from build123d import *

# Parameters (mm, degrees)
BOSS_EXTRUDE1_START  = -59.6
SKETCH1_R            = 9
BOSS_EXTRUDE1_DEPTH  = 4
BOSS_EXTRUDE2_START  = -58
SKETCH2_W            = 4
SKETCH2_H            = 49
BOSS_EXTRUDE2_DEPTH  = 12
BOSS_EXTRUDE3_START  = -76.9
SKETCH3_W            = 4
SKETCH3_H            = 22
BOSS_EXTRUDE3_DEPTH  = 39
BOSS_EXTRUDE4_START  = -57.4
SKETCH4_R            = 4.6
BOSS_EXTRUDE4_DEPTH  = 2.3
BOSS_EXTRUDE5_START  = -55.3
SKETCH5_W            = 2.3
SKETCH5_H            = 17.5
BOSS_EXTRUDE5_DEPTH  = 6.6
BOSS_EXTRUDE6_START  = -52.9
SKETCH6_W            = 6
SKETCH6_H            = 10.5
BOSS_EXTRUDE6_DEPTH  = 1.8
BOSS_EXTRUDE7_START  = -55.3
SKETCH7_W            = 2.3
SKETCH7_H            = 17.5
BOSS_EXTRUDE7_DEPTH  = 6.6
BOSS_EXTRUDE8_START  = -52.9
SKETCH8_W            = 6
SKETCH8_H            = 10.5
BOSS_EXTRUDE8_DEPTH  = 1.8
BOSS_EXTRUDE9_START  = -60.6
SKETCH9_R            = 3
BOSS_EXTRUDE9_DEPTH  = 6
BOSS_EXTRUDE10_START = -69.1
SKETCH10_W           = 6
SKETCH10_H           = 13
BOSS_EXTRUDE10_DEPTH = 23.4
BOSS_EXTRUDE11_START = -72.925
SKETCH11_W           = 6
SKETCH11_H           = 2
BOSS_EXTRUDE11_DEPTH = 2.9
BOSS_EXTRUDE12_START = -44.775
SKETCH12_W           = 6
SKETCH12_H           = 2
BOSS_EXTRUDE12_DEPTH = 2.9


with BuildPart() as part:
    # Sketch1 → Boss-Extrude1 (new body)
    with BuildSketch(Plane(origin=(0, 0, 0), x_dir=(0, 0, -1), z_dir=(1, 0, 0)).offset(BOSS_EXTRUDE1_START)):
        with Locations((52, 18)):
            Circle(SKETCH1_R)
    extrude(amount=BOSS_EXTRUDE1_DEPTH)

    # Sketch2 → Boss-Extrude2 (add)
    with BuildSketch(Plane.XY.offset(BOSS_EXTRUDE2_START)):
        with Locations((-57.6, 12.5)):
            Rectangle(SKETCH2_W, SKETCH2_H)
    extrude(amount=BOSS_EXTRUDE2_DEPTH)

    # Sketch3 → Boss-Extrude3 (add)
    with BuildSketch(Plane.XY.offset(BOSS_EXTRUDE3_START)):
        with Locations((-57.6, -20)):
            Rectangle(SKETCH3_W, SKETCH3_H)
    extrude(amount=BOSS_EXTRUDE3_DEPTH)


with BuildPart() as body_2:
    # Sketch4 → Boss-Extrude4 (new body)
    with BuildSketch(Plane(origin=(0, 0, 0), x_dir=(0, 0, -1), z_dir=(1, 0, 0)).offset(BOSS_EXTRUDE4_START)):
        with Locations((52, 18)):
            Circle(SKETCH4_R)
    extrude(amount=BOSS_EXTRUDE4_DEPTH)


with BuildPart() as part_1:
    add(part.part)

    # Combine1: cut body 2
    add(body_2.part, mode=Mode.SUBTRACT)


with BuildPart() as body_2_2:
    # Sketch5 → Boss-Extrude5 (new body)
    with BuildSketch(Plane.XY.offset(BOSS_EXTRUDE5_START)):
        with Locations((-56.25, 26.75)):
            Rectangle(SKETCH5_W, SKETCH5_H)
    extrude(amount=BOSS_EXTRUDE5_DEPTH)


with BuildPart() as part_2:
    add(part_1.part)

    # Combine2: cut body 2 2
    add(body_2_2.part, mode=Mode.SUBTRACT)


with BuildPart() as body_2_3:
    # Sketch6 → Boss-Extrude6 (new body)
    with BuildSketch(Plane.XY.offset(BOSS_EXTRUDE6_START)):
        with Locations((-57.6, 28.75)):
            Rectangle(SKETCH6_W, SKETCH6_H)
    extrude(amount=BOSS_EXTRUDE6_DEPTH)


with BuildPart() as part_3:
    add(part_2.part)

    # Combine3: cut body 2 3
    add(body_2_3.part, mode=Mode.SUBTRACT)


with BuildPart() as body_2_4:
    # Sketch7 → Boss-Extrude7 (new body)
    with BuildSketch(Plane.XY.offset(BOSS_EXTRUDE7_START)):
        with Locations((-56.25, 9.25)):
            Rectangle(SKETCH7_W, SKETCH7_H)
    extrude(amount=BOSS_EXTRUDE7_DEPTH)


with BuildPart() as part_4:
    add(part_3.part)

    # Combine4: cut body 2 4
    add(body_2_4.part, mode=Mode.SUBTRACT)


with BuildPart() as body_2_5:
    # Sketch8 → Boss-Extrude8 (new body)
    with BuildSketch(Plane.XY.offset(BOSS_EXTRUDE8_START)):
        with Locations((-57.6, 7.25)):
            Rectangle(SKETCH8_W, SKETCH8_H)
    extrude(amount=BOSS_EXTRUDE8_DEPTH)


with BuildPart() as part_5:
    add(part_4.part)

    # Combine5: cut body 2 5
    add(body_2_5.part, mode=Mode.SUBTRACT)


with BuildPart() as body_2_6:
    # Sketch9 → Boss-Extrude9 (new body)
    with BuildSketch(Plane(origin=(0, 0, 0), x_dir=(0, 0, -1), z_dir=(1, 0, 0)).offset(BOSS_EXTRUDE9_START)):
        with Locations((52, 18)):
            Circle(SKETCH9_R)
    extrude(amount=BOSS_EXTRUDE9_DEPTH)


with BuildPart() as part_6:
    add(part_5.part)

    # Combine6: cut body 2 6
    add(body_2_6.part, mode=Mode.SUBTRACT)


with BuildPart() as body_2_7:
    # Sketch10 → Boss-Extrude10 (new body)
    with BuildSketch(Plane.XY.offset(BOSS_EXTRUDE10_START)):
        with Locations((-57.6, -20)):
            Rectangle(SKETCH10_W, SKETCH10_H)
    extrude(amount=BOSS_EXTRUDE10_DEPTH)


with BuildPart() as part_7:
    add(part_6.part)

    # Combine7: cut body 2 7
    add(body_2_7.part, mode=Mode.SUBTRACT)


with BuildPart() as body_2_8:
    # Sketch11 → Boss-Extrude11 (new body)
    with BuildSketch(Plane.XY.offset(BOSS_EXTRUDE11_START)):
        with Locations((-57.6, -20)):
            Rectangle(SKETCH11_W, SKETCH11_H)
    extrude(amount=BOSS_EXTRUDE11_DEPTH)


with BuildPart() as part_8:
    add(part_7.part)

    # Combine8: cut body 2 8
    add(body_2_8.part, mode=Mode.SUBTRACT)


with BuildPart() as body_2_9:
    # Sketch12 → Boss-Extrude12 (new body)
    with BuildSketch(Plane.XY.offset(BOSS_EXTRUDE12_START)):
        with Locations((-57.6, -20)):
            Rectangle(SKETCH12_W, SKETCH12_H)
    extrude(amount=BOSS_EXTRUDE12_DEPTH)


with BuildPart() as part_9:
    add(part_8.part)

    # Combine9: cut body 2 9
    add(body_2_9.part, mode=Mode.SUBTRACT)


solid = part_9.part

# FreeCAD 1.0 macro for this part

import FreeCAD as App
import Part
import Sketcher

V = App.Vector

doc = App.newDocument("Part")
body = doc.addObject("PartDesign::Body", "Body")

# Sketch on YZ plane
sketch1 = body.newObject("Sketcher::SketchObject", "Sketch")
sketch1.AttachmentSupport = (doc.getObject("YZ_Plane"), [""])
sketch1.MapMode = "FlatFace"
sketch1.AttachmentOffset = App.Placement(V(0, 0, -59.6), App.Rotation())
sketch1.addGeometry(Part.Circle(V(18, -52, 0), V(0, 0, 1), 9), False)
sketch1.addConstraint(Sketcher.Constraint("Diameter", 0, 18.0))
sketch1.addConstraint(Sketcher.Constraint("DistanceX", -1, 1, 0, 3, 18.0))
sketch1.addConstraint(Sketcher.Constraint("DistanceY", 0, 3, -1, 1, 52.0))
pad1 = body.newObject("PartDesign::Pad", "Pad")
pad1.Profile = sketch1
pad1.Length = 4

# Sketch on XY plane
sketch2 = body.newObject("Sketcher::SketchObject", "Sketch001")
sketch2.AttachmentSupport = (doc.getObject("XY_Plane"), [""])
sketch2.MapMode = "FlatFace"
sketch2.AttachmentOffset = App.Placement(V(0, 0, -58), App.Rotation())
sketch2.addGeometry(Part.LineSegment(V(-59.6, 37, 0), V(-59.6, -12, 0)), False)
sketch2.addGeometry(Part.LineSegment(V(-59.6, -12, 0), V(-55.6, -12, 0)), False)
sketch2.addGeometry(Part.LineSegment(V(-55.6, -12, 0), V(-55.6, 37, 0)), False)
sketch2.addGeometry(Part.LineSegment(V(-55.6, 37, 0), V(-59.6, 37, 0)), False)
sketch2.addConstraint(Sketcher.Constraint("Coincident", 0, 2, 1, 1))
sketch2.addConstraint(Sketcher.Constraint("Coincident", 1, 2, 2, 1))
sketch2.addConstraint(Sketcher.Constraint("Coincident", 2, 2, 3, 1))
sketch2.addConstraint(Sketcher.Constraint("Coincident", 3, 2, 0, 1))
sketch2.addConstraint(Sketcher.Constraint("Vertical", 0))
sketch2.addConstraint(Sketcher.Constraint("Horizontal", 1))
sketch2.addConstraint(Sketcher.Constraint("Vertical", 2))
sketch2.addConstraint(Sketcher.Constraint("Horizontal", 3))
sketch2.addConstraint(Sketcher.Constraint("DistanceX", 1, 1, 1, 2, 4.0))
sketch2.addConstraint(Sketcher.Constraint("DistanceY", 0, 2, 0, 1, 49.0))
sketch2.addConstraint(Sketcher.Constraint("DistanceY", 0, 2, -1, 1, 12.0))
sketch2.addConstraint(Sketcher.Constraint("DistanceX", 0, 2, -1, 1, 59.6))
pad2 = body.newObject("PartDesign::Pad", "Pad001")
pad2.Profile = sketch2
pad2.Length = 12

# Sketch on XY plane
sketch3 = body.newObject("Sketcher::SketchObject", "Sketch002")
sketch3.AttachmentSupport = (doc.getObject("XY_Plane"), [""])
sketch3.MapMode = "FlatFace"
sketch3.AttachmentOffset = App.Placement(V(0, 0, -76.9), App.Rotation())
sketch3.addGeometry(Part.LineSegment(V(-59.6, -9, 0), V(-59.6, -31, 0)), False)
sketch3.addGeometry(Part.LineSegment(V(-59.6, -31, 0), V(-55.6, -31, 0)), False)
sketch3.addGeometry(Part.LineSegment(V(-55.6, -31, 0), V(-55.6, -9, 0)), False)
sketch3.addGeometry(Part.LineSegment(V(-55.6, -9, 0), V(-59.6, -9, 0)), False)
sketch3.addConstraint(Sketcher.Constraint("Coincident", 0, 2, 1, 1))
sketch3.addConstraint(Sketcher.Constraint("Coincident", 1, 2, 2, 1))
sketch3.addConstraint(Sketcher.Constraint("Coincident", 2, 2, 3, 1))
sketch3.addConstraint(Sketcher.Constraint("Coincident", 3, 2, 0, 1))
sketch3.addConstraint(Sketcher.Constraint("Vertical", 0))
sketch3.addConstraint(Sketcher.Constraint("Horizontal", 1))
sketch3.addConstraint(Sketcher.Constraint("Vertical", 2))
sketch3.addConstraint(Sketcher.Constraint("Horizontal", 3))
sketch3.addConstraint(Sketcher.Constraint("DistanceX", 1, 1, 1, 2, 4.0))
sketch3.addConstraint(Sketcher.Constraint("DistanceY", 0, 2, 0, 1, 22.0))
sketch3.addConstraint(Sketcher.Constraint("DistanceY", 0, 2, -1, 1, 31.0))
sketch3.addConstraint(Sketcher.Constraint("DistanceX", 0, 2, -1, 1, 59.6))
pad3 = body.newObject("PartDesign::Pad", "Pad002")
pad3.Profile = sketch3
pad3.Length = 39
body2 = doc.addObject("PartDesign::Body", "Body001")

# Sketch on YZ plane
sketch4 = body2.newObject("Sketcher::SketchObject", "Sketch003")
sketch4.AttachmentSupport = (doc.getObject("YZ_Plane001"), [""])
sketch4.MapMode = "FlatFace"
sketch4.AttachmentOffset = App.Placement(V(0, 0, -57.4), App.Rotation())
sketch4.addGeometry(Part.Circle(V(18, -52, 0), V(0, 0, 1), 4.6), False)
sketch4.addConstraint(Sketcher.Constraint("Diameter", 0, 9.2))
sketch4.addConstraint(Sketcher.Constraint("DistanceX", -1, 1, 0, 3, 18.0))
sketch4.addConstraint(Sketcher.Constraint("DistanceY", 0, 3, -1, 1, 52.0))
pad4 = body2.newObject("PartDesign::Pad", "Pad003")
pad4.Profile = sketch4
pad4.Length = 2.3
doc.recompute()

boolean = body.newObject("PartDesign::Boolean", "Boolean")
boolean.Type = "Cut"
boolean.addObjects([body2])
body3 = doc.addObject("PartDesign::Body", "Body002")

# Sketch on XY plane
sketch5 = body3.newObject("Sketcher::SketchObject", "Sketch004")
sketch5.AttachmentSupport = (doc.getObject("XY_Plane002"), [""])
sketch5.MapMode = "FlatFace"
sketch5.AttachmentOffset = App.Placement(V(0, 0, -55.3), App.Rotation())
sketch5.addGeometry(Part.LineSegment(V(-57.4, 35.5, 0), V(-57.4, 18, 0)), False)
sketch5.addGeometry(Part.LineSegment(V(-57.4, 18, 0), V(-55.1, 18, 0)), False)
sketch5.addGeometry(Part.LineSegment(V(-55.1, 18, 0), V(-55.1, 35.5, 0)), False)
sketch5.addGeometry(Part.LineSegment(V(-55.1, 35.5, 0), V(-57.4, 35.5, 0)), False)
sketch5.addConstraint(Sketcher.Constraint("Coincident", 0, 2, 1, 1))
sketch5.addConstraint(Sketcher.Constraint("Coincident", 1, 2, 2, 1))
sketch5.addConstraint(Sketcher.Constraint("Coincident", 2, 2, 3, 1))
sketch5.addConstraint(Sketcher.Constraint("Coincident", 3, 2, 0, 1))
sketch5.addConstraint(Sketcher.Constraint("Vertical", 0))
sketch5.addConstraint(Sketcher.Constraint("Horizontal", 1))
sketch5.addConstraint(Sketcher.Constraint("Vertical", 2))
sketch5.addConstraint(Sketcher.Constraint("Horizontal", 3))
sketch5.addConstraint(Sketcher.Constraint("DistanceX", 1, 1, 1, 2, 2.3))
sketch5.addConstraint(Sketcher.Constraint("DistanceY", 0, 2, 0, 1, 17.5))
sketch5.addConstraint(Sketcher.Constraint("DistanceY", -1, 1, 0, 2, 18.0))
sketch5.addConstraint(Sketcher.Constraint("DistanceX", 0, 2, -1, 1, 57.4))
pad5 = body3.newObject("PartDesign::Pad", "Pad004")
pad5.Profile = sketch5
pad5.Length = 6.6
doc.recompute()

boolean2 = body.newObject("PartDesign::Boolean", "Boolean001")
boolean2.Type = "Cut"
boolean2.addObjects([body3])
body4 = doc.addObject("PartDesign::Body", "Body003")

# Sketch on XY plane
sketch6 = body4.newObject("Sketcher::SketchObject", "Sketch005")
sketch6.AttachmentSupport = (doc.getObject("XY_Plane003"), [""])
sketch6.MapMode = "FlatFace"
sketch6.AttachmentOffset = App.Placement(V(0, 0, -52.9), App.Rotation())
sketch6.addGeometry(Part.LineSegment(V(-60.6, 34, 0), V(-60.6, 23.5, 0)), False)
sketch6.addGeometry(Part.LineSegment(V(-60.6, 23.5, 0), V(-54.6, 23.5, 0)), False)
sketch6.addGeometry(Part.LineSegment(V(-54.6, 23.5, 0), V(-54.6, 34, 0)), False)
sketch6.addGeometry(Part.LineSegment(V(-54.6, 34, 0), V(-60.6, 34, 0)), False)
sketch6.addConstraint(Sketcher.Constraint("Coincident", 0, 2, 1, 1))
sketch6.addConstraint(Sketcher.Constraint("Coincident", 1, 2, 2, 1))
sketch6.addConstraint(Sketcher.Constraint("Coincident", 2, 2, 3, 1))
sketch6.addConstraint(Sketcher.Constraint("Coincident", 3, 2, 0, 1))
sketch6.addConstraint(Sketcher.Constraint("Vertical", 0))
sketch6.addConstraint(Sketcher.Constraint("Horizontal", 1))
sketch6.addConstraint(Sketcher.Constraint("Vertical", 2))
sketch6.addConstraint(Sketcher.Constraint("Horizontal", 3))
sketch6.addConstraint(Sketcher.Constraint("DistanceX", 1, 1, 1, 2, 6.0))
sketch6.addConstraint(Sketcher.Constraint("DistanceY", 0, 2, 0, 1, 10.5))
sketch6.addConstraint(Sketcher.Constraint("DistanceY", -1, 1, 2, 2, 34.0))
sketch6.addConstraint(Sketcher.Constraint("DistanceX", 0, 2, -1, 1, 60.6))
pad6 = body4.newObject("PartDesign::Pad", "Pad005")
pad6.Profile = sketch6
pad6.Length = 1.8
doc.recompute()

boolean3 = body.newObject("PartDesign::Boolean", "Boolean002")
boolean3.Type = "Cut"
boolean3.addObjects([body4])
body5 = doc.addObject("PartDesign::Body", "Body004")

# Sketch on XY plane
sketch7 = body5.newObject("Sketcher::SketchObject", "Sketch006")
sketch7.AttachmentSupport = (doc.getObject("XY_Plane004"), [""])
sketch7.MapMode = "FlatFace"
sketch7.AttachmentOffset = App.Placement(V(0, 0, -55.3), App.Rotation())
sketch7.addGeometry(Part.LineSegment(V(-57.4, 18, 0), V(-57.4, 0.5, 0)), False)
sketch7.addGeometry(Part.LineSegment(V(-57.4, 0.5, 0), V(-55.1, 0.5, 0)), False)
sketch7.addGeometry(Part.LineSegment(V(-55.1, 0.5, 0), V(-55.1, 18, 0)), False)
sketch7.addGeometry(Part.LineSegment(V(-55.1, 18, 0), V(-57.4, 18, 0)), False)
sketch7.addConstraint(Sketcher.Constraint("Coincident", 0, 2, 1, 1))
sketch7.addConstraint(Sketcher.Constraint("Coincident", 1, 2, 2, 1))
sketch7.addConstraint(Sketcher.Constraint("Coincident", 2, 2, 3, 1))
sketch7.addConstraint(Sketcher.Constraint("Coincident", 3, 2, 0, 1))
sketch7.addConstraint(Sketcher.Constraint("Vertical", 0))
sketch7.addConstraint(Sketcher.Constraint("Horizontal", 1))
sketch7.addConstraint(Sketcher.Constraint("Vertical", 2))
sketch7.addConstraint(Sketcher.Constraint("Horizontal", 3))
sketch7.addConstraint(Sketcher.Constraint("DistanceX", 1, 1, 1, 2, 2.3))
sketch7.addConstraint(Sketcher.Constraint("DistanceY", 0, 2, 0, 1, 17.5))
sketch7.addConstraint(Sketcher.Constraint("DistanceY", -1, 1, 2, 2, 18.0))
sketch7.addConstraint(Sketcher.Constraint("DistanceX", 0, 2, -1, 1, 57.4))
pad7 = body5.newObject("PartDesign::Pad", "Pad006")
pad7.Profile = sketch7
pad7.Length = 6.6
doc.recompute()

boolean4 = body.newObject("PartDesign::Boolean", "Boolean003")
boolean4.Type = "Cut"
boolean4.addObjects([body5])
body6 = doc.addObject("PartDesign::Body", "Body005")

# Sketch on XY plane
sketch8 = body6.newObject("Sketcher::SketchObject", "Sketch007")
sketch8.AttachmentSupport = (doc.getObject("XY_Plane005"), [""])
sketch8.MapMode = "FlatFace"
sketch8.AttachmentOffset = App.Placement(V(0, 0, -52.9), App.Rotation())
sketch8.addGeometry(Part.LineSegment(V(-60.6, 12.5, 0), V(-60.6, 2, 0)), False)
sketch8.addGeometry(Part.LineSegment(V(-60.6, 2, 0), V(-54.6, 2, 0)), False)
sketch8.addGeometry(Part.LineSegment(V(-54.6, 2, 0), V(-54.6, 12.5, 0)), False)
sketch8.addGeometry(Part.LineSegment(V(-54.6, 12.5, 0), V(-60.6, 12.5, 0)), False)
sketch8.addConstraint(Sketcher.Constraint("Coincident", 0, 2, 1, 1))
sketch8.addConstraint(Sketcher.Constraint("Coincident", 1, 2, 2, 1))
sketch8.addConstraint(Sketcher.Constraint("Coincident", 2, 2, 3, 1))
sketch8.addConstraint(Sketcher.Constraint("Coincident", 3, 2, 0, 1))
sketch8.addConstraint(Sketcher.Constraint("Vertical", 0))
sketch8.addConstraint(Sketcher.Constraint("Horizontal", 1))
sketch8.addConstraint(Sketcher.Constraint("Vertical", 2))
sketch8.addConstraint(Sketcher.Constraint("Horizontal", 3))
sketch8.addConstraint(Sketcher.Constraint("DistanceX", 1, 1, 1, 2, 6.0))
sketch8.addConstraint(Sketcher.Constraint("DistanceY", 0, 2, 0, 1, 10.5))
sketch8.addConstraint(Sketcher.Constraint("DistanceY", -1, 1, 0, 2, 2.0))
sketch8.addConstraint(Sketcher.Constraint("DistanceX", 0, 2, -1, 1, 60.6))
pad8 = body6.newObject("PartDesign::Pad", "Pad007")
pad8.Profile = sketch8
pad8.Length = 1.8
doc.recompute()

boolean5 = body.newObject("PartDesign::Boolean", "Boolean004")
boolean5.Type = "Cut"
boolean5.addObjects([body6])
body7 = doc.addObject("PartDesign::Body", "Body006")

# Sketch on YZ plane
sketch9 = body7.newObject("Sketcher::SketchObject", "Sketch008")
sketch9.AttachmentSupport = (doc.getObject("YZ_Plane006"), [""])
sketch9.MapMode = "FlatFace"
sketch9.AttachmentOffset = App.Placement(V(0, 0, -60.6), App.Rotation())
sketch9.addGeometry(Part.Circle(V(18, -52, 0), V(0, 0, 1), 3), False)
sketch9.addConstraint(Sketcher.Constraint("Diameter", 0, 6.0))
sketch9.addConstraint(Sketcher.Constraint("DistanceX", -1, 1, 0, 3, 18.0))
sketch9.addConstraint(Sketcher.Constraint("DistanceY", 0, 3, -1, 1, 52.0))
pad9 = body7.newObject("PartDesign::Pad", "Pad008")
pad9.Profile = sketch9
pad9.Length = 6
doc.recompute()

boolean6 = body.newObject("PartDesign::Boolean", "Boolean005")
boolean6.Type = "Cut"
boolean6.addObjects([body7])
body8 = doc.addObject("PartDesign::Body", "Body007")

# Sketch on XY plane
sketch10 = body8.newObject("Sketcher::SketchObject", "Sketch009")
sketch10.AttachmentSupport = (doc.getObject("XY_Plane007"), [""])
sketch10.MapMode = "FlatFace"
sketch10.AttachmentOffset = App.Placement(V(0, 0, -69.1), App.Rotation())
sketch10.addGeometry(Part.LineSegment(V(-60.6, -13.5, 0), V(-60.6, -26.5, 0)), False)
sketch10.addGeometry(Part.LineSegment(V(-60.6, -26.5, 0), V(-54.6, -26.5, 0)), False)
sketch10.addGeometry(Part.LineSegment(V(-54.6, -26.5, 0), V(-54.6, -13.5, 0)), False)
sketch10.addGeometry(Part.LineSegment(V(-54.6, -13.5, 0), V(-60.6, -13.5, 0)), False)
sketch10.addConstraint(Sketcher.Constraint("Coincident", 0, 2, 1, 1))
sketch10.addConstraint(Sketcher.Constraint("Coincident", 1, 2, 2, 1))
sketch10.addConstraint(Sketcher.Constraint("Coincident", 2, 2, 3, 1))
sketch10.addConstraint(Sketcher.Constraint("Coincident", 3, 2, 0, 1))
sketch10.addConstraint(Sketcher.Constraint("Vertical", 0))
sketch10.addConstraint(Sketcher.Constraint("Horizontal", 1))
sketch10.addConstraint(Sketcher.Constraint("Vertical", 2))
sketch10.addConstraint(Sketcher.Constraint("Horizontal", 3))
sketch10.addConstraint(Sketcher.Constraint("DistanceX", 1, 1, 1, 2, 6.0))
sketch10.addConstraint(Sketcher.Constraint("DistanceY", 0, 2, 0, 1, 13.0))
sketch10.addConstraint(Sketcher.Constraint("DistanceX", 0, 2, -1, 1, 60.6))
sketch10.addConstraint(Sketcher.Constraint("DistanceY", 0, 2, -1, 1, 26.5))
pad10 = body8.newObject("PartDesign::Pad", "Pad009")
pad10.Profile = sketch10
pad10.Length = 23.4
doc.recompute()

boolean7 = body.newObject("PartDesign::Boolean", "Boolean006")
boolean7.Type = "Cut"
boolean7.addObjects([body8])
body9 = doc.addObject("PartDesign::Body", "Body008")

# Sketch on XY plane
sketch11 = body9.newObject("Sketcher::SketchObject", "Sketch010")
sketch11.AttachmentSupport = (doc.getObject("XY_Plane008"), [""])
sketch11.MapMode = "FlatFace"
sketch11.AttachmentOffset = App.Placement(V(0, 0, -72.925), App.Rotation())
sketch11.addGeometry(Part.LineSegment(V(-60.6, -19, 0), V(-60.6, -21, 0)), False)
sketch11.addGeometry(Part.LineSegment(V(-60.6, -21, 0), V(-54.6, -21, 0)), False)
sketch11.addGeometry(Part.LineSegment(V(-54.6, -21, 0), V(-54.6, -19, 0)), False)
sketch11.addGeometry(Part.LineSegment(V(-54.6, -19, 0), V(-60.6, -19, 0)), False)
sketch11.addConstraint(Sketcher.Constraint("Coincident", 0, 2, 1, 1))
sketch11.addConstraint(Sketcher.Constraint("Coincident", 1, 2, 2, 1))
sketch11.addConstraint(Sketcher.Constraint("Coincident", 2, 2, 3, 1))
sketch11.addConstraint(Sketcher.Constraint("Coincident", 3, 2, 0, 1))
sketch11.addConstraint(Sketcher.Constraint("Vertical", 0))
sketch11.addConstraint(Sketcher.Constraint("Horizontal", 1))
sketch11.addConstraint(Sketcher.Constraint("Vertical", 2))
sketch11.addConstraint(Sketcher.Constraint("Horizontal", 3))
sketch11.addConstraint(Sketcher.Constraint("DistanceX", 1, 1, 1, 2, 6.0))
sketch11.addConstraint(Sketcher.Constraint("DistanceY", 0, 2, 0, 1, 2.0))
sketch11.addConstraint(Sketcher.Constraint("DistanceY", 0, 2, -1, 1, 21.0))
sketch11.addConstraint(Sketcher.Constraint("DistanceX", 0, 2, -1, 1, 60.6))
pad11 = body9.newObject("PartDesign::Pad", "Pad010")
pad11.Profile = sketch11
pad11.Length = 2.9
doc.recompute()

boolean8 = body.newObject("PartDesign::Boolean", "Boolean007")
boolean8.Type = "Cut"
boolean8.addObjects([body9])
body10 = doc.addObject("PartDesign::Body", "Body009")

# Sketch on XY plane
sketch12 = body10.newObject("Sketcher::SketchObject", "Sketch011")
sketch12.AttachmentSupport = (doc.getObject("XY_Plane009"), [""])
sketch12.MapMode = "FlatFace"
sketch12.AttachmentOffset = App.Placement(V(0, 0, -44.775), App.Rotation())
sketch12.addGeometry(Part.LineSegment(V(-60.6, -19, 0), V(-60.6, -21, 0)), False)
sketch12.addGeometry(Part.LineSegment(V(-60.6, -21, 0), V(-54.6, -21, 0)), False)
sketch12.addGeometry(Part.LineSegment(V(-54.6, -21, 0), V(-54.6, -19, 0)), False)
sketch12.addGeometry(Part.LineSegment(V(-54.6, -19, 0), V(-60.6, -19, 0)), False)
sketch12.addConstraint(Sketcher.Constraint("Coincident", 0, 2, 1, 1))
sketch12.addConstraint(Sketcher.Constraint("Coincident", 1, 2, 2, 1))
sketch12.addConstraint(Sketcher.Constraint("Coincident", 2, 2, 3, 1))
sketch12.addConstraint(Sketcher.Constraint("Coincident", 3, 2, 0, 1))
sketch12.addConstraint(Sketcher.Constraint("Vertical", 0))
sketch12.addConstraint(Sketcher.Constraint("Horizontal", 1))
sketch12.addConstraint(Sketcher.Constraint("Vertical", 2))
sketch12.addConstraint(Sketcher.Constraint("Horizontal", 3))
sketch12.addConstraint(Sketcher.Constraint("DistanceX", 1, 1, 1, 2, 6.0))
sketch12.addConstraint(Sketcher.Constraint("DistanceY", 0, 2, 0, 1, 2.0))
sketch12.addConstraint(Sketcher.Constraint("DistanceY", 0, 2, -1, 1, 21.0))
sketch12.addConstraint(Sketcher.Constraint("DistanceX", 0, 2, -1, 1, 60.6))
pad12 = body10.newObject("PartDesign::Pad", "Pad011")
pad12.Profile = sketch12
pad12.Length = 2.9
doc.recompute()

boolean9 = body.newObject("PartDesign::Boolean", "Boolean008")
boolean9.Type = "Cut"
boolean9.addObjects([body10])

doc.recompute()
